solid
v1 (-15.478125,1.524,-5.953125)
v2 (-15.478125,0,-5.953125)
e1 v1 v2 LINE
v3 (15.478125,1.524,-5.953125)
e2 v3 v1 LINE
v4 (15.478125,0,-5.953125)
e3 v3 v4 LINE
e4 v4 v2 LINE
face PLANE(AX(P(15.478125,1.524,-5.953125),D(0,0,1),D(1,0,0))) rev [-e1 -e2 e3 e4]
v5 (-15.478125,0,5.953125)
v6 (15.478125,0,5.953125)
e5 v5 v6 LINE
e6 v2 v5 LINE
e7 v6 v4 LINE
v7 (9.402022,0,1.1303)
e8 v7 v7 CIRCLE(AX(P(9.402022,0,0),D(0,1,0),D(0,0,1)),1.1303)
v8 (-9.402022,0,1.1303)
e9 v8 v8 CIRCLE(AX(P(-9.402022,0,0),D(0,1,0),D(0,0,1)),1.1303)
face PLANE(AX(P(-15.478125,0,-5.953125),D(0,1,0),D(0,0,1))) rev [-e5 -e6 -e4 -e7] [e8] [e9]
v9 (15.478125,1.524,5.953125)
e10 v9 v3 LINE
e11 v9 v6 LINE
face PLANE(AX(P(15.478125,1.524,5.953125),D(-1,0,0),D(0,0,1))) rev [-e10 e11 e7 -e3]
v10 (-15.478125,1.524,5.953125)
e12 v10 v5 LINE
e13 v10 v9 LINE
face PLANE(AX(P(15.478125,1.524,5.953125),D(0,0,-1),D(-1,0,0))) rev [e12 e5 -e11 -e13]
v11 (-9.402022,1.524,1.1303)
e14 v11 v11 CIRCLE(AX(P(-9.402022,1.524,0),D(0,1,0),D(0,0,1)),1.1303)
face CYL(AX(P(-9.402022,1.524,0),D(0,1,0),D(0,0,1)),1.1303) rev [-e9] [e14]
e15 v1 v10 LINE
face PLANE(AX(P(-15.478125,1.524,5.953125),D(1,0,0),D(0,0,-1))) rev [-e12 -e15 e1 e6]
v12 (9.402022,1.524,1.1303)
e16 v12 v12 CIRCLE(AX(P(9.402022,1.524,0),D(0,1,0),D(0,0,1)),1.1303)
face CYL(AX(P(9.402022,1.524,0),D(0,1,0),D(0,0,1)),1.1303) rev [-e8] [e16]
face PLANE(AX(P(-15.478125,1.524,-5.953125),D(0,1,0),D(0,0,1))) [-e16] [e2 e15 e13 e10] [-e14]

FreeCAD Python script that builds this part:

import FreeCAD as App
import Part
import Sketcher
from FreeCAD import Vector
Q = App.Units.Quantity


def add_polygon(sketch, points):
    """Adds a closed chain of lines whose ends are joined by coincident constraints."""
    first, n = sketch.GeometryCount, len(points)
    for a, b in zip(points, points[1:] + points[:1]):
        sketch.addGeometry(Part.LineSegment(App.Vector(*a, 0), App.Vector(*b, 0)), False)
    for i in range(n):
        sketch.addConstraint(Sketcher.Constraint("Coincident", first + i, 2, first + (i + 1) % n, 1))

doc = App.newDocument("Part")
body = doc.addObject("PartDesign::Body", "Body")

# Sketch on XZ plane
sketch1 = body.newObject("Sketcher::SketchObject", "Sketch")
sketch1.AttachmentSupport = (doc.getObject("XZ_Plane"), [""])
sketch1.MapMode = "FlatFace"
add_polygon(sketch1, [(-15, -6), (-15, 6), (15, 6), (15, -6)])  # lines 0-3
sketch1.addConstraint(Sketcher.Constraint("Vertical", 0))
sketch1.addConstraint(Sketcher.Constraint("Horizontal", 1))
sketch1.addConstraint(Sketcher.Constraint("Vertical", 2))
sketch1.addConstraint(Sketcher.Constraint("Horizontal", 3))
sketch1.addConstraint(Sketcher.Constraint("Symmetric", 0, 2, 2, 2, -1, 1))
sketch1.addConstraint(Sketcher.Constraint("DistanceX", 1, 1, 1, 2, Q("1.21875 in")))
sketch1.addConstraint(Sketcher.Constraint("DistanceY", 0, 1, 0, 2, Q("0.46875 in")))
pad1 = body.newObject("PartDesign::Pad", "Pad")
pad1.Profile = sketch1
pad1.Length = Q("0.06 in")
pad1.Reversed = True

# Sketch on XZ plane
sketch2 = body.newObject("Sketcher::SketchObject", "Sketch001")
sketch2.AttachmentSupport = (doc.getObject("XZ_Plane"), [""])
sketch2.MapMode = "FlatFace"
sketch2.AttachmentOffset = App.Placement(Vector(0, 0, -0.06 * 25.4), App.Rotation())
sketch2.addGeometry(Part.Circle(Vector(-9.4, 0, 0), Vector(0, 0, 1), 1.1), False)
sketch2.addGeometry(Part.Circle(Vector(9.4, 0, 0), Vector(0, 0, 1), 1.1), False)
sketch2.addConstraint(Sketcher.Constraint("Equal", 0, 1))
sketch2.addConstraint(Sketcher.Constraint("Symmetric", 0, 3, 1, 3, -1, 1))
sketch2.addConstraint(Sketcher.Constraint("PointOnObject", 0, 3, -1))
sketch2.addConstraint(Sketcher.Constraint("Diameter", 0, Q("0.089 in")))
sketch2.addConstraint(Sketcher.Constraint("DistanceX", 0, 3, -1, 1, Q("9.402022 mm")))
doc.recompute()
hole = body.newObject("PartDesign::Hole", "Hole")
hole.Profile = sketch2
hole.ThreadType = "None"
hole.Diameter = Q("0.089 in")
hole.DepthType = "Dimension"
hole.Depth = Q("0.35 in")
hole.DrillPoint = "Angled"
hole.DrillPointAngle = 118
hole.Reversed = True

doc.recompute()
